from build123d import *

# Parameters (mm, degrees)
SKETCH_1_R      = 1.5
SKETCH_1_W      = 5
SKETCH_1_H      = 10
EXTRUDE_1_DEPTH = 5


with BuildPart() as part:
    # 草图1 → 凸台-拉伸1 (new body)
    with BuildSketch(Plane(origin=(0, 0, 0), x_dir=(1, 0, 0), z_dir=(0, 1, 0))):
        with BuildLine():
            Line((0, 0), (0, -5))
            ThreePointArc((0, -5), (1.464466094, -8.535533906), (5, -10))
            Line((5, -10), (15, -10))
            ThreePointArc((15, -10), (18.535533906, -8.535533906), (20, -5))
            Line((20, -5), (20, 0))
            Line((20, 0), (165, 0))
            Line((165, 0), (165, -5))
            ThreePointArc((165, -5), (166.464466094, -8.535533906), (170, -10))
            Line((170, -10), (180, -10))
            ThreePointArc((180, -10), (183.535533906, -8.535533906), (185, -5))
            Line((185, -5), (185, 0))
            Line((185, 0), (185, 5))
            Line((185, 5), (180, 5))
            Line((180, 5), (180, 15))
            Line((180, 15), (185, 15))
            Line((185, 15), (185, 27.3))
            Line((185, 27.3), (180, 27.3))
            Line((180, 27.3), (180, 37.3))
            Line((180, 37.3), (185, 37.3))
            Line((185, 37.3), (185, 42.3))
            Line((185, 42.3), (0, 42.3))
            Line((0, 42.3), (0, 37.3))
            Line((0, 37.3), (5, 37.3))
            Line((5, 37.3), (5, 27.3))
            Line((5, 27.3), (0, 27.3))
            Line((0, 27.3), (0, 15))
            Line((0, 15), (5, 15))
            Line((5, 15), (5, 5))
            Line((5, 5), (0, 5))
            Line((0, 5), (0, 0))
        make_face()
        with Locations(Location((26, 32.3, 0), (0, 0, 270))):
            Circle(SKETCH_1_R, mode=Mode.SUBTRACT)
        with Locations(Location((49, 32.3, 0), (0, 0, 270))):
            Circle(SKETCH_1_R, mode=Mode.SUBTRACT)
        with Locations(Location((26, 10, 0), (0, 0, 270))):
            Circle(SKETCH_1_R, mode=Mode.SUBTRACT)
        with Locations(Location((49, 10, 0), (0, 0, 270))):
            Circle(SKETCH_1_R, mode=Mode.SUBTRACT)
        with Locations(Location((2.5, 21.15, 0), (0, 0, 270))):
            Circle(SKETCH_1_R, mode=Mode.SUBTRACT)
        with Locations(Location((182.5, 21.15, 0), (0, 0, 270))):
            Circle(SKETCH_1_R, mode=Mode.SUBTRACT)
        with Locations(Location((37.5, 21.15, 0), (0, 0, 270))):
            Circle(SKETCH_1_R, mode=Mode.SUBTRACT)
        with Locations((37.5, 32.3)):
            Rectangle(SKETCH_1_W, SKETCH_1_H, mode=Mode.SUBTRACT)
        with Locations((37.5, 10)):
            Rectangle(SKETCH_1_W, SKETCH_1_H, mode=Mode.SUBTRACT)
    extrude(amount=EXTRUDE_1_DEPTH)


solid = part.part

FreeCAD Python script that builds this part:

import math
import FreeCAD as App
import Part
import Sketcher

V = App.Vector
Q = App.Units.Quantity

doc = App.newDocument("Part")
body = doc.addObject("PartDesign::Body", "Body")

sketch1 = body.newObject("Sketcher::SketchObject", "Sketch")
sketch1.AttachmentSupport = (doc.getObject("XZ_Plane"), [""])
sketch1.MapMode = "FlatFace"
sketch1.addGeometry([
    Part.ArcOfCircle(Part.Circle(V(5, 5, 0), V(0, 0, 1), 5), math.radians(90), math.radians(180)),
    Part.LineSegment(V(5, 10, 0), V(15, 10, 0)),
    Part.ArcOfCircle(Part.Circle(V(15, 5, 0), V(0, 0, 1), 5), math.radians(0), math.radians(90)),
    Part.LineSegment(V(20, 5, 0), V(20, 0, 0)),
    Part.LineSegment(V(20, 0, 0), V(165, 0, 0)),
    Part.LineSegment(V(165, 0, 0), V(165, 5, 0)),
    Part.ArcOfCircle(Part.Circle(V(170, 5, 0), V(0, 0, 1), 5), math.radians(90), math.radians(180)),
    Part.LineSegment(V(170, 10, 0), V(180, 10, 0)),
    Part.ArcOfCircle(Part.Circle(V(180, 5, 0), V(0, 0, 1), 5), math.radians(0), math.radians(90)),
    Part.LineSegment(V(185, 5, 0), V(185, -5, 0)),
    Part.LineSegment(V(185, -5, 0), V(180, -5, 0)),
    Part.LineSegment(V(180, -5, 0), V(180, -15, 0)),
    Part.LineSegment(V(180, -15, 0), V(185, -15, 0)),
    Part.LineSegment(V(185, -15, 0), V(185, -27.3, 0)),
    Part.LineSegment(V(185, -27.3, 0), V(180, -27.3, 0)),
    Part.LineSegment(V(180, -27.3, 0), V(180, -37.3, 0)),
    Part.LineSegment(V(180, -37.3, 0), V(185, -37.3, 0)),
    Part.LineSegment(V(185, -37.3, 0), V(185, -42.3, 0)),
    Part.LineSegment(V(185, -42.3, 0), V(0, -42.3, 0)),
    Part.LineSegment(V(0, -42.3, 0), V(0, -37.3, 0)),
    Part.LineSegment(V(0, -37.3, 0), V(5, -37.3, 0)),
    Part.LineSegment(V(5, -37.3, 0), V(5, -27.3, 0)),
    Part.LineSegment(V(5, -27.3, 0), V(0, -27.3, 0)),
    Part.LineSegment(V(0, -27.3, 0), V(0, -15, 0)),
    Part.LineSegment(V(0, -15, 0), V(5, -15, 0)),
    Part.LineSegment(V(5, -15, 0), V(5, -5, 0)),
    Part.LineSegment(V(5, -5, 0), V(0, -5, 0)),
    Part.LineSegment(V(0, -5, 0), V(0, 5, 0)),
    Part.Circle(V(26, -10, 0), V(0, 0, 1), 1.5),
    Part.LineSegment(V(40, -5, 0), V(35, -5, 0)),
    Part.LineSegment(V(35, -5, 0), V(35, -15, 0)),
    Part.LineSegment(V(35, -15, 0), V(40, -15, 0)),
    Part.LineSegment(V(40, -15, 0), V(40, -5, 0)),
    Part.Circle(V(49, -10, 0), V(0, 0, 1), 1.5),
    Part.Circle(V(2.5, -21.1, 0), V(0, 0, 1), 1.5),
    Part.Circle(V(37.5, -21.1, 0), V(0, 0, 1), 1.5),
    Part.Circle(V(26, -32.3, 0), V(0, 0, 1), 1.5),
    Part.LineSegment(V(40, -27.3, 0), V(35, -27.3, 0)),
    Part.LineSegment(V(35, -27.3, 0), V(35, -37.3, 0)),
    Part.LineSegment(V(35, -37.3, 0), V(40, -37.3, 0)),
    Part.LineSegment(V(40, -37.3, 0), V(40, -27.3, 0)),
    Part.Circle(V(49, -32.3, 0), V(0, 0, 1), 1.5),
    Part.Circle(V(182.5, -21.1, 0), V(0, 0, 1), 1.5),
], False)
sketch1.addConstraint([
    Sketcher.Constraint("Tangent", 0, 1, 1, 1),
    Sketcher.Constraint("Tangent", 1, 2, 2, 2),
    Sketcher.Constraint("Tangent", 2, 1, 3, 1),
    Sketcher.Constraint("Coincident", 3, 2, 4, 1),
    Sketcher.Constraint("Coincident", 4, 2, 5, 1),
    Sketcher.Constraint("Tangent", 5, 2, 6, 2),
    Sketcher.Constraint("Tangent", 6, 1, 7, 1),
    Sketcher.Constraint("Tangent", 7, 2, 8, 2),
    Sketcher.Constraint("Tangent", 8, 1, 9, 1),
    Sketcher.Constraint("Coincident", 9, 2, 10, 1),
    Sketcher.Constraint("Coincident", 10, 2, 11, 1),
    Sketcher.Constraint("Coincident", 11, 2, 12, 1),
    Sketcher.Constraint("Coincident", 12, 2, 13, 1),
    Sketcher.Constraint("Coincident", 13, 2, 14, 1),
    Sketcher.Constraint("Coincident", 14, 2, 15, 1),
    Sketcher.Constraint("Coincident", 15, 2, 16, 1),
    Sketcher.Constraint("Coincident", 16, 2, 17, 1),
    Sketcher.Constraint("Coincident", 17, 2, 18, 1),
    Sketcher.Constraint("Coincident", 18, 2, 19, 1),
    Sketcher.Constraint("Coincident", 19, 2, 20, 1),
    Sketcher.Constraint("Coincident", 20, 2, 21, 1),
    Sketcher.Constraint("Coincident", 21, 2, 22, 1),
    Sketcher.Constraint("Coincident", 22, 2, 23, 1),
    Sketcher.Constraint("Coincident", 23, 2, 24, 1),
    Sketcher.Constraint("Coincident", 24, 2, 25, 1),
    Sketcher.Constraint("Coincident", 25, 2, 26, 1),
    Sketcher.Constraint("Coincident", 26, 2, 27, 1),
    Sketcher.Constraint("Tangent", 27, 2, 0, 2),
    Sketcher.Constraint("Coincident", 29, 2, 30, 1),
    Sketcher.Constraint("Coincident", 30, 2, 31, 1),
    Sketcher.Constraint("Coincident", 31, 2, 32, 1),
    Sketcher.Constraint("Coincident", 32, 2, 29, 1),
    Sketcher.Constraint("Coincident", 37, 2, 38, 1),
    Sketcher.Constraint("Coincident", 38, 2, 39, 1),
    Sketcher.Constraint("Coincident", 39, 2, 40, 1),
    Sketcher.Constraint("Coincident", 40, 2, 37, 1),
    Sketcher.Constraint("Horizontal", 1),
    Sketcher.Constraint("Vertical", 3),
    Sketcher.Constraint("Horizontal", 4),
    Sketcher.Constraint("Vertical", 5),
    Sketcher.Constraint("Horizontal", 7),
    Sketcher.Constraint("Vertical", 9),
    Sketcher.Constraint("Horizontal", 10),
    Sketcher.Constraint("Vertical", 11),
    Sketcher.Constraint("Horizontal", 12),
    Sketcher.Constraint("Vertical", 13),
    Sketcher.Constraint("Horizontal", 14),
    Sketcher.Constraint("Vertical", 15),
    Sketcher.Constraint("Horizontal", 16),
    Sketcher.Constraint("Vertical", 17),
    Sketcher.Constraint("Horizontal", 18),
    Sketcher.Constraint("Vertical", 19),
    Sketcher.Constraint("Horizontal", 20),
    Sketcher.Constraint("Vertical", 21),
    Sketcher.Constraint("Horizontal", 22),
    Sketcher.Constraint("Vertical", 23),
    Sketcher.Constraint("Horizontal", 24),
    Sketcher.Constraint("Vertical", 25),
    Sketcher.Constraint("Horizontal", 26),
    Sketcher.Constraint("Vertical", 27),
    Sketcher.Constraint("Horizontal", 29),
    Sketcher.Constraint("Vertical", 30),
    Sketcher.Constraint("Horizontal", 31),
    Sketcher.Constraint("Vertical", 32),
    Sketcher.Constraint("Horizontal", 37),
    Sketcher.Constraint("Vertical", 38),
    Sketcher.Constraint("Horizontal", 39),
    Sketcher.Constraint("Vertical", 40),
    Sketcher.Constraint("Equal", 0, 2),
    Sketcher.Constraint("Equal", 2, 6),
    Sketcher.Constraint("Equal", 6, 8),
    Sketcher.Constraint("Equal", 28, 33),
    Sketcher.Constraint("Equal", 33, 34),
    Sketcher.Constraint("Equal", 34, 35),
    Sketcher.Constraint("Equal", 35, 36),
    Sketcher.Constraint("Equal", 36, 41),
    Sketcher.Constraint("Equal", 41, 42),
    Sketcher.Constraint("Symmetric", 26, 2, 27, 2, -1, 1),
    Sketcher.Constraint("PointOnObject", 3, 2, -1),
    Sketcher.Constraint("PointOnObject", 18, 2, -2),
    Sketcher.Constraint("PointOnObject", 22, 2, -2),
    Sketcher.Constraint("Horizontal", 2, 3, 6, 3),
    Sketcher.Constraint("Horizontal", 28, 3, 33, 3),
    Sketcher.Constraint("Horizontal", 34, 3, 35, 3),
    Sketcher.Constraint("Horizontal", 36, 3, 41, 3),
    Sketcher.Constraint("Horizontal", 35, 3, 42, 3),
    Sketcher.Constraint("Horizontal", 16, 2, 19, 2),
    Sketcher.Constraint("Horizontal", 14, 2, 21, 2),
    Sketcher.Constraint("Horizontal", 12, 2, 23, 2),
    Sketcher.Constraint("Horizontal", 10, 2, 25, 2),
    Sketcher.Constraint("Horizontal", 26, 2, 29, 2),
    Sketcher.Constraint("Horizontal", 24, 2, 30, 2),
    Sketcher.Constraint("Horizontal", 22, 2, 37, 2),
    Sketcher.Constraint("Horizontal", 20, 2, 38, 2),
    Sketcher.Constraint("Vertical", 28, 3, 36, 3),
    Sketcher.Constraint("Vertical", 33, 3, 41, 3),
    Sketcher.Constraint("Vertical", 7, 2, 10, 2),
    Sketcher.Constraint("Vertical", 9, 2, 12, 2),
    Sketcher.Constraint("Vertical", 11, 2, 14, 2),
    Sketcher.Constraint("Vertical", 13, 2, 16, 2),
    Sketcher.Constraint("Vertical", 0, 1, 20, 2),
    Sketcher.Constraint("Vertical", 21, 2, 24, 2),
    Sketcher.Constraint("Vertical", 30, 2, 37, 2),
    Sketcher.Constraint("Vertical", 32, 2, 39, 2),
    Sketcher.Constraint("Equal", 1, 7),
    Sketcher.Constraint("Equal", 26, 29),
    Sketcher.Constraint("Equal", 39, 3),
    Sketcher.Constraint("Equal", 7, 9),
    Sketcher.Constraint("Equal", 9, 11),
    Sketcher.Constraint("Equal", 11, 15),
    Sketcher.Constraint("Equal", 5, 17),
    Sketcher.Constraint("Diameter", 28, Q("3 mm")),
    Sketcher.Constraint("Radius", 0, Q("5 mm")),
    Sketcher.Constraint("DistanceX", 4, 1, 4, 2, Q("145 mm")),
    Sketcher.Constraint("DistanceY", 13, 2, 13, 1, Q("12.3 mm")),
    Sketcher.Constraint("DistanceX", -1, 1, 28, 3, Q("26 mm")),
    Sketcher.Constraint("DistanceY", 28, 3, -1, 1, Q("10 mm")),
    Sketcher.Constraint("DistanceX", -1, 1, 33, 3, Q("49 mm")),
    Sketcher.Constraint("DistanceX", -1, 1, 29, 2, Q("35 mm")),
    Sketcher.Constraint("DistanceX", 34, 3, 35, 3, Q("35 mm")),
    Sketcher.Constraint("DistanceX", 35, 3, 42, 3, Q("145 mm")),
    Sketcher.Constraint("DistanceY", 18, 2, 36, 3, Q("10 mm")),
    Sketcher.Constraint("DistanceX", -1, 1, 34, 3, Q("2.5 mm")),
    Sketcher.Constraint("DistanceY", 34, 3, -1, 1, Q("21.15 mm")),
])
pad1 = body.newObject("PartDesign::Pad", "Pad")
pad1.Profile = sketch1
pad1.Length = 5
pad1.Reversed = True

doc.recompute()
